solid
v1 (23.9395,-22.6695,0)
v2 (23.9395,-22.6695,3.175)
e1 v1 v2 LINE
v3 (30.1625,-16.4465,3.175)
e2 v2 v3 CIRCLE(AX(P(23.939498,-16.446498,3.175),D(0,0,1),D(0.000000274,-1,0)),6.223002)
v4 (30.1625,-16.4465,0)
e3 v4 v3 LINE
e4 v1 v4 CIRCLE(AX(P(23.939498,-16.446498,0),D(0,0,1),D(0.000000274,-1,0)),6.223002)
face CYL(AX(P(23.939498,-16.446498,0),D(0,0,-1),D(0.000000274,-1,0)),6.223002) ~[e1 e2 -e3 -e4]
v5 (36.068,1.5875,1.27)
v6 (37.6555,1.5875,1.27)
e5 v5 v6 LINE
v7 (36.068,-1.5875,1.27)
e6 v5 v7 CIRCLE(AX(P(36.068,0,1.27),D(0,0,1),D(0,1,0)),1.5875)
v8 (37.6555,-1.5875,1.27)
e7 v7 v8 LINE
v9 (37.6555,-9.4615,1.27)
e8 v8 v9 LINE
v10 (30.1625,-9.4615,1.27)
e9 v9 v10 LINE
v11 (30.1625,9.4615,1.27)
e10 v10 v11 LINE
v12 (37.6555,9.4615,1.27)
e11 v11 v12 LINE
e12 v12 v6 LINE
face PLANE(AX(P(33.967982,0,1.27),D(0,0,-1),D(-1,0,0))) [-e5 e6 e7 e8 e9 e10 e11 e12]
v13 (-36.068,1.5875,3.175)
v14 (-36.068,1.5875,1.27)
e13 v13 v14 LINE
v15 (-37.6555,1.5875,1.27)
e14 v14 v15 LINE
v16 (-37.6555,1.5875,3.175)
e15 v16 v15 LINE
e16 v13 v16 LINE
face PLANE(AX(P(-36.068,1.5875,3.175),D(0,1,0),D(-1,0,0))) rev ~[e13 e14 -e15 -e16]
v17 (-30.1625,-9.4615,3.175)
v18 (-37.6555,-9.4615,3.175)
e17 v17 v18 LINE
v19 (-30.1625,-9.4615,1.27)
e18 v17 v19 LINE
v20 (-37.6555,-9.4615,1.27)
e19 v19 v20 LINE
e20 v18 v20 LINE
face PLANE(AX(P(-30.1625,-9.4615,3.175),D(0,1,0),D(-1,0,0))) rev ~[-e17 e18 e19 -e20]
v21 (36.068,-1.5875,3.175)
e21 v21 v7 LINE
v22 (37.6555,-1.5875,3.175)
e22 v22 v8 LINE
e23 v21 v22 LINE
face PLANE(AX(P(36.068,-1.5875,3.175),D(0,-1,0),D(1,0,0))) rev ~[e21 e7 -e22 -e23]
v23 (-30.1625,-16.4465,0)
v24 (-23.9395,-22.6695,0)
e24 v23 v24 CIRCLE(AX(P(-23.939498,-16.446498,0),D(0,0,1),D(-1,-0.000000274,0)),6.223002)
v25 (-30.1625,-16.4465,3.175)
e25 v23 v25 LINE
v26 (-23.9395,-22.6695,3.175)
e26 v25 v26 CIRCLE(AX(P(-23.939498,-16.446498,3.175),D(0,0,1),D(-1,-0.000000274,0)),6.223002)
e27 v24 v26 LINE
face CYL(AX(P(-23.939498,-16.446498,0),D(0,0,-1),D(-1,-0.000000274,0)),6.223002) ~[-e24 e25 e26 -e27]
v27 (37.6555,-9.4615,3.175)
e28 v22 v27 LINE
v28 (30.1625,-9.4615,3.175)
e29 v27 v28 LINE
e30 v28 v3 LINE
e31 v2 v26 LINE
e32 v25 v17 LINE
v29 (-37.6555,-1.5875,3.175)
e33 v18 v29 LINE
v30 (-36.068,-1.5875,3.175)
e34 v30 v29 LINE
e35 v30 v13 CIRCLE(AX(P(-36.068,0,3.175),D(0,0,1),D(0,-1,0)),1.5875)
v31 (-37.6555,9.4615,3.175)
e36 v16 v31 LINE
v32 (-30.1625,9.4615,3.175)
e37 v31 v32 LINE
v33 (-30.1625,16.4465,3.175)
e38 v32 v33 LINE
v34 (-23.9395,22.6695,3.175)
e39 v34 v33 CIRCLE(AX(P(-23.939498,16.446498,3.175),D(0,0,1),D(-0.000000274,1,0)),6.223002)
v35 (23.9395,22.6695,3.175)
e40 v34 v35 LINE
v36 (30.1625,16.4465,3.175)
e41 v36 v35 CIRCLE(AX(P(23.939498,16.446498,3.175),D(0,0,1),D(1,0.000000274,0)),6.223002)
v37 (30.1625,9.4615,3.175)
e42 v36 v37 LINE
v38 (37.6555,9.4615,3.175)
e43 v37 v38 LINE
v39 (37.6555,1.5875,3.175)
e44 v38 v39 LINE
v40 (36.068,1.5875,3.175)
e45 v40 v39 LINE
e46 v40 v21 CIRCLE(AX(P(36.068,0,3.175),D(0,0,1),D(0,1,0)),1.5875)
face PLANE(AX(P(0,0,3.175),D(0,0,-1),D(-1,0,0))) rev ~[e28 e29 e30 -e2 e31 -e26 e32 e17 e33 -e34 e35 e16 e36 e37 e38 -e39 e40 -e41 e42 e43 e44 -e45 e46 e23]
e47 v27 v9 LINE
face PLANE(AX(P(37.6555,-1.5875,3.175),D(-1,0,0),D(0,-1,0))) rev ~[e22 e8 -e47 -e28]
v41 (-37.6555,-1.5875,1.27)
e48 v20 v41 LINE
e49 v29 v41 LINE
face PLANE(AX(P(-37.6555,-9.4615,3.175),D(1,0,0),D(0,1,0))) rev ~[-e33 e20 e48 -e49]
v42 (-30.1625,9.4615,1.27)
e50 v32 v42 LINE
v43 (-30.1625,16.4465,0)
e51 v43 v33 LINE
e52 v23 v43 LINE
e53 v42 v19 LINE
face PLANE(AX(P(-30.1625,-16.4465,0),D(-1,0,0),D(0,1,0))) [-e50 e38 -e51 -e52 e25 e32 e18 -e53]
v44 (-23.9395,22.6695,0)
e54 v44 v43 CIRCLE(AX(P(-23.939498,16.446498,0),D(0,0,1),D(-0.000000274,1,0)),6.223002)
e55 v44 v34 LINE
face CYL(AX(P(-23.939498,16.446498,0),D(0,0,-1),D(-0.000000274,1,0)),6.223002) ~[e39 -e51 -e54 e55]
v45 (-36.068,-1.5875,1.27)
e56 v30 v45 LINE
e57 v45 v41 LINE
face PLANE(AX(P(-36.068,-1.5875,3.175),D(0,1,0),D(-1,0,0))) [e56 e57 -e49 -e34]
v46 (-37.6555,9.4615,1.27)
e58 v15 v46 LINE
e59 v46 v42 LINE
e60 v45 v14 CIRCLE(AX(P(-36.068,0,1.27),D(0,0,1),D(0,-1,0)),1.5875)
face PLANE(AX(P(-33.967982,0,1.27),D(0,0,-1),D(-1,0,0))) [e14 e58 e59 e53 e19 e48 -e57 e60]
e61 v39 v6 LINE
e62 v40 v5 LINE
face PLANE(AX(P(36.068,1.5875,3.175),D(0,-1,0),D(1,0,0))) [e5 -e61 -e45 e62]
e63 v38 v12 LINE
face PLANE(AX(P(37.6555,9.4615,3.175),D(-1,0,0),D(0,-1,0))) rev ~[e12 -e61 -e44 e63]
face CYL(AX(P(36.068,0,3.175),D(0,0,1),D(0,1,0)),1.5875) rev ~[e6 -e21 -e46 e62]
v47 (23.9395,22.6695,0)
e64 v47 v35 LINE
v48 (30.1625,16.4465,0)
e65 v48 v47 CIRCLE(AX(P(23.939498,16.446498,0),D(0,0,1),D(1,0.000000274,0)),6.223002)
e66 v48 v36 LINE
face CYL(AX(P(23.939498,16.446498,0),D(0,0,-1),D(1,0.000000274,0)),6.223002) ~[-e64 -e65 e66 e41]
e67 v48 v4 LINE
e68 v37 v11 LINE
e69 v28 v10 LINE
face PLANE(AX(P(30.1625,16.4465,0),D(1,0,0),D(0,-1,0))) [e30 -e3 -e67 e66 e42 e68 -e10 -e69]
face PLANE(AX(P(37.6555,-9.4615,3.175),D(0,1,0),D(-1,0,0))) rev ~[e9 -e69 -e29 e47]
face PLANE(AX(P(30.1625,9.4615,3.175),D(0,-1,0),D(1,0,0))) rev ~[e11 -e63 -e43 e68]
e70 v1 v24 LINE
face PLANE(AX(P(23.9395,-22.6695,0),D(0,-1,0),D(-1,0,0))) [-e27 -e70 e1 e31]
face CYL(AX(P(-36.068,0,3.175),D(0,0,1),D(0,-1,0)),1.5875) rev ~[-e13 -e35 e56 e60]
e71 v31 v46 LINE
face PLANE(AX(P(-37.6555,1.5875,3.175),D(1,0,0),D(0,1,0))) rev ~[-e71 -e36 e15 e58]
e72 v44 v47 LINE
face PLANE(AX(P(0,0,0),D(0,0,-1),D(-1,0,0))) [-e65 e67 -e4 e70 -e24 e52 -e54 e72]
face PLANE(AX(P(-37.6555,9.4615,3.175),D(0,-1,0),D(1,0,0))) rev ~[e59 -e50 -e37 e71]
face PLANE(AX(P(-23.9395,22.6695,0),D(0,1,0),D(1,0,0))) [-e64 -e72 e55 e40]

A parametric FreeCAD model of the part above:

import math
import FreeCAD as App
import Part
import Sketcher

V = App.Vector
Q = App.Units.Quantity

doc = App.newDocument("Part")
params = doc.addObject("Spreadsheet::Sheet", "Params")
for row, (alias, value) in enumerate([
    ("sketch1_radius", "0.2450001 in"),
    ("sketch1_width", "1.885 in"),
    ("sketch1_height", "1.295 in"),
    ("pad1_length", "0.125 in"),
    ("sketch2_radius", "0.0625 in"),
    ("sketch2_height", "0.31 in"),
    ("sketch2_width", "0.295 in"),
    ("sketch2_width2", "0.0625 in"),
    ("pad2_length", "0.075 in"),
], start=1):
    params.set(f"A{row}", alias)
    params.set(f"B{row}", "=" + value)
    params.setAlias(f"B{row}", alias)

body = doc.addObject("PartDesign::Body", "Body")

sketch1 = body.newObject("Sketcher::SketchObject", "Sketch")
sketch1.AttachmentSupport = (doc.getObject("XY_Plane"), [""])
sketch1.MapMode = "FlatFace"
sketch1.addGeometry(Part.LineSegment(V(-30.1625, 16.4465, 0), V(-30.1625, -16.4465, 0)), False)
sketch1.addGeometry(Part.ArcOfCircle(Part.Circle(V(-23.939498, -16.446498, 0), V(0, 0, 1), 6.223002), math.radians(-179.999984), math.radians(-90.000016)), False)
sketch1.addGeometry(Part.LineSegment(V(-23.9395, -22.6695, 0), V(23.9395, -22.6695, 0)), False)
sketch1.addGeometry(Part.ArcOfCircle(Part.Circle(V(23.939498, -16.446498, 0), V(0, 0, 1), 6.223002), math.radians(-89.999984), math.radians(-0.000016)), False)
sketch1.addGeometry(Part.LineSegment(V(30.1625, -16.4465, 0), V(30.1625, 16.4465, 0)), False)
sketch1.addGeometry(Part.ArcOfCircle(Part.Circle(V(23.939498, 16.446498, 0), V(0, 0, 1), 6.223002), math.radians(0.000016), math.radians(89.999984)), False)
sketch1.addGeometry(Part.LineSegment(V(23.9395, 22.6695, 0), V(-23.9395, 22.6695, 0)), False)
sketch1.addGeometry(Part.ArcOfCircle(Part.Circle(V(-23.939498, 16.446498, 0), V(0, 0, 1), 6.223002), math.radians(90.000016), math.radians(179.999984)), False)
sketch1.addConstraint(Sketcher.Constraint("Tangent", 0, 2, 1, 1))
sketch1.addConstraint(Sketcher.Constraint("Tangent", 1, 2, 2, 1))
sketch1.addConstraint(Sketcher.Constraint("Tangent", 2, 2, 3, 1))
sketch1.addConstraint(Sketcher.Constraint("Tangent", 3, 2, 4, 1))
sketch1.addConstraint(Sketcher.Constraint("Tangent", 4, 2, 5, 1))
sketch1.addConstraint(Sketcher.Constraint("Tangent", 5, 2, 6, 1))
sketch1.addConstraint(Sketcher.Constraint("Tangent", 6, 2, 7, 1))
sketch1.addConstraint(Sketcher.Constraint("Tangent", 7, 2, 0, 1))
sketch1.addConstraint(Sketcher.Constraint("Vertical", 0))
sketch1.addConstraint(Sketcher.Constraint("Horizontal", 2))
sketch1.addConstraint(Sketcher.Constraint("Vertical", 4))
sketch1.addConstraint(Sketcher.Constraint("Horizontal", 6))
sketch1.addConstraint(Sketcher.Constraint("Equal", 1, 3))
sketch1.addConstraint(Sketcher.Constraint("Equal", 3, 5))
sketch1.addConstraint(Sketcher.Constraint("Equal", 5, 7))
sketch1.addConstraint(Sketcher.Constraint("Symmetric", 1, 3, 5, 3, -1, 1))
sketch1.addConstraint(Sketcher.Constraint("Radius", 1, Q("0.2450001 in")))
sketch1.addConstraint(Sketcher.Constraint("DistanceX", 2, 1, 2, 2, Q("1.885 in")))
sketch1.addConstraint(Sketcher.Constraint("DistanceY", 0, 2, 0, 1, Q("1.295 in")))
sketch1.setExpression("Constraints[16]", "Params.sketch1_radius")
sketch1.setExpression("Constraints[17]", "Params.sketch1_width")
sketch1.setExpression("Constraints[18]", "Params.sketch1_height")
pad1 = body.newObject("PartDesign::Pad", "Pad")
pad1.Profile = sketch1
pad1.setExpression("Length", "Params.pad1_length")

sketch2 = body.newObject("Sketcher::SketchObject", "Sketch001")
sketch2.AttachmentSupport = (doc.getObject("XY_Plane"), [""])
sketch2.MapMode = "FlatFace"
sketch2.AttachmentOffset = App.Placement(V(0, 0, 0.125 * 25.4), App.Rotation())
sketch2.addGeometry(Part.LineSegment(V(30.1625, 9.4615, 0), V(30.1625, -9.4615, 0)), False)
sketch2.addGeometry(Part.LineSegment(V(30.1625, -9.4615, 0), V(37.6555, -9.4615, 0)), False)
sketch2.addGeometry(Part.LineSegment(V(37.6555, -9.4615, 0), V(37.6555, -1.5875, 0)), False)
sketch2.addGeometry(Part.LineSegment(V(37.6555, -1.5875, 0), V(36.068, -1.5875, 0)), False)
sketch2.addGeometry(Part.ArcOfCircle(Part.Circle(V(36.068, 0, 0), V(0, 0, 1), 1.5875), math.radians(90), math.radians(270)), False)
sketch2.addGeometry(Part.LineSegment(V(36.068, 1.5875, 0), V(37.6555, 1.5875, 0)), False)
sketch2.addGeometry(Part.LineSegment(V(37.6555, 1.5875, 0), V(37.6555, 9.4615, 0)), False)
sketch2.addGeometry(Part.LineSegment(V(37.6555, 9.4615, 0), V(30.1625, 9.4615, 0)), False)
sketch2.addGeometry(Part.LineSegment(V(-37.6555, -1.5875, 0), V(-37.6555, -9.4615, 0)), False)
sketch2.addGeometry(Part.LineSegment(V(-37.6555, -9.4615, 0), V(-30.1625, -9.4615, 0)), False)
sketch2.addGeometry(Part.LineSegment(V(-30.1625, -9.4615, 0), V(-30.1625, 9.4615, 0)), False)
sketch2.addGeometry(Part.LineSegment(V(-30.1625, 9.4615, 0), V(-37.6555, 9.4615, 0)), False)
sketch2.addGeometry(Part.LineSegment(V(-37.6555, 9.4615, 0), V(-37.6555, 1.5875, 0)), False)
sketch2.addGeometry(Part.LineSegment(V(-37.6555, 1.5875, 0), V(-36.068, 1.5875, 0)), False)
sketch2.addGeometry(Part.ArcOfCircle(Part.Circle(V(-36.068, 0, 0), V(0, 0, 1), 1.5875), math.radians(-90), math.radians(90)), False)
sketch2.addGeometry(Part.LineSegment(V(-36.068, -1.5875, 0), V(-37.6555, -1.5875, 0)), False)
sketch2.addConstraint(Sketcher.Constraint("Coincident", 0, 2, 1, 1))
sketch2.addConstraint(Sketcher.Constraint("Coincident", 1, 2, 2, 1))
sketch2.addConstraint(Sketcher.Constraint("Coincident", 2, 2, 3, 1))
sketch2.addConstraint(Sketcher.Constraint("Tangent", 3, 2, 4, 2))
sketch2.addConstraint(Sketcher.Constraint("Tangent", 4, 1, 5, 1))
sketch2.addConstraint(Sketcher.Constraint("Coincident", 5, 2, 6, 1))
sketch2.addConstraint(Sketcher.Constraint("Coincident", 6, 2, 7, 1))
sketch2.addConstraint(Sketcher.Constraint("Coincident", 7, 2, 0, 1))
sketch2.addConstraint(Sketcher.Constraint("Coincident", 8, 2, 9, 1))
sketch2.addConstraint(Sketcher.Constraint("Coincident", 9, 2, 10, 1))
sketch2.addConstraint(Sketcher.Constraint("Coincident", 10, 2, 11, 1))
sketch2.addConstraint(Sketcher.Constraint("Coincident", 11, 2, 12, 1))
sketch2.addConstraint(Sketcher.Constraint("Coincident", 12, 2, 13, 1))
sketch2.addConstraint(Sketcher.Constraint("Tangent", 13, 2, 14, 2))
sketch2.addConstraint(Sketcher.Constraint("Tangent", 14, 1, 15, 1))
sketch2.addConstraint(Sketcher.Constraint("Coincident", 15, 2, 8, 1))
sketch2.addConstraint(Sketcher.Constraint("Vertical", 0))
sketch2.addConstraint(Sketcher.Constraint("Horizontal", 1))
sketch2.addConstraint(Sketcher.Constraint("Vertical", 2))
sketch2.addConstraint(Sketcher.Constraint("Horizontal", 3))
sketch2.addConstraint(Sketcher.Constraint("Horizontal", 5))
sketch2.addConstraint(Sketcher.Constraint("Vertical", 6))
sketch2.addConstraint(Sketcher.Constraint("Horizontal", 7))
sketch2.addConstraint(Sketcher.Constraint("Vertical", 8))
sketch2.addConstraint(Sketcher.Constraint("Horizontal", 9))
sketch2.addConstraint(Sketcher.Constraint("Vertical", 10))
sketch2.addConstraint(Sketcher.Constraint("Horizontal", 11))
sketch2.addConstraint(Sketcher.Constraint("Vertical", 12))
sketch2.addConstraint(Sketcher.Constraint("Horizontal", 13))
sketch2.addConstraint(Sketcher.Constraint("Horizontal", 15))
sketch2.addConstraint(Sketcher.Constraint("Equal", 4, 14))
sketch2.addConstraint(Sketcher.Constraint("Symmetric", 4, 3, 14, 3, -1, 1))
sketch2.addConstraint(Sketcher.Constraint("Symmetric", 6, 2, 8, 2, -1, 1))
sketch2.addConstraint(Sketcher.Constraint("Symmetric", 0, 2, 10, 2, -1, 1))
sketch2.addConstraint(Sketcher.Constraint("Symmetric", 1, 2, 8, 2, -2))
sketch2.addConstraint(Sketcher.Constraint("Symmetric", 5, 2, 12, 2, -2))
sketch2.addConstraint(Sketcher.Constraint("Radius", 4, Q("0.0625 in")))
sketch2.addConstraint(Sketcher.Constraint("DistanceY", 2, 1, 2, 2, Q("0.31 in")))
sketch2.addConstraint(Sketcher.Constraint("DistanceX", 1, 1, 1, 2, Q("0.295 in")))
sketch2.addConstraint(Sketcher.Constraint("DistanceX", 3, 2, 3, 1, Q("0.0625 in")))
sketch2.addConstraint(Sketcher.Constraint("DistanceX", -1, 1, 4, 3, Q("1.42 in")))
sketch2.setExpression("Constraints[36]", "Params.sketch2_radius")
sketch2.setExpression("Constraints[37]", "Params.sketch2_height")
sketch2.setExpression("Constraints[38]", "Params.sketch2_width")
sketch2.setExpression("Constraints[39]", "Params.sketch2_width2")
pad2 = body.newObject("PartDesign::Pad", "Pad001")
pad2.Profile = sketch2
pad2.setExpression("Length", "Params.pad2_length")
pad2.Reversed = True

doc.recompute()
